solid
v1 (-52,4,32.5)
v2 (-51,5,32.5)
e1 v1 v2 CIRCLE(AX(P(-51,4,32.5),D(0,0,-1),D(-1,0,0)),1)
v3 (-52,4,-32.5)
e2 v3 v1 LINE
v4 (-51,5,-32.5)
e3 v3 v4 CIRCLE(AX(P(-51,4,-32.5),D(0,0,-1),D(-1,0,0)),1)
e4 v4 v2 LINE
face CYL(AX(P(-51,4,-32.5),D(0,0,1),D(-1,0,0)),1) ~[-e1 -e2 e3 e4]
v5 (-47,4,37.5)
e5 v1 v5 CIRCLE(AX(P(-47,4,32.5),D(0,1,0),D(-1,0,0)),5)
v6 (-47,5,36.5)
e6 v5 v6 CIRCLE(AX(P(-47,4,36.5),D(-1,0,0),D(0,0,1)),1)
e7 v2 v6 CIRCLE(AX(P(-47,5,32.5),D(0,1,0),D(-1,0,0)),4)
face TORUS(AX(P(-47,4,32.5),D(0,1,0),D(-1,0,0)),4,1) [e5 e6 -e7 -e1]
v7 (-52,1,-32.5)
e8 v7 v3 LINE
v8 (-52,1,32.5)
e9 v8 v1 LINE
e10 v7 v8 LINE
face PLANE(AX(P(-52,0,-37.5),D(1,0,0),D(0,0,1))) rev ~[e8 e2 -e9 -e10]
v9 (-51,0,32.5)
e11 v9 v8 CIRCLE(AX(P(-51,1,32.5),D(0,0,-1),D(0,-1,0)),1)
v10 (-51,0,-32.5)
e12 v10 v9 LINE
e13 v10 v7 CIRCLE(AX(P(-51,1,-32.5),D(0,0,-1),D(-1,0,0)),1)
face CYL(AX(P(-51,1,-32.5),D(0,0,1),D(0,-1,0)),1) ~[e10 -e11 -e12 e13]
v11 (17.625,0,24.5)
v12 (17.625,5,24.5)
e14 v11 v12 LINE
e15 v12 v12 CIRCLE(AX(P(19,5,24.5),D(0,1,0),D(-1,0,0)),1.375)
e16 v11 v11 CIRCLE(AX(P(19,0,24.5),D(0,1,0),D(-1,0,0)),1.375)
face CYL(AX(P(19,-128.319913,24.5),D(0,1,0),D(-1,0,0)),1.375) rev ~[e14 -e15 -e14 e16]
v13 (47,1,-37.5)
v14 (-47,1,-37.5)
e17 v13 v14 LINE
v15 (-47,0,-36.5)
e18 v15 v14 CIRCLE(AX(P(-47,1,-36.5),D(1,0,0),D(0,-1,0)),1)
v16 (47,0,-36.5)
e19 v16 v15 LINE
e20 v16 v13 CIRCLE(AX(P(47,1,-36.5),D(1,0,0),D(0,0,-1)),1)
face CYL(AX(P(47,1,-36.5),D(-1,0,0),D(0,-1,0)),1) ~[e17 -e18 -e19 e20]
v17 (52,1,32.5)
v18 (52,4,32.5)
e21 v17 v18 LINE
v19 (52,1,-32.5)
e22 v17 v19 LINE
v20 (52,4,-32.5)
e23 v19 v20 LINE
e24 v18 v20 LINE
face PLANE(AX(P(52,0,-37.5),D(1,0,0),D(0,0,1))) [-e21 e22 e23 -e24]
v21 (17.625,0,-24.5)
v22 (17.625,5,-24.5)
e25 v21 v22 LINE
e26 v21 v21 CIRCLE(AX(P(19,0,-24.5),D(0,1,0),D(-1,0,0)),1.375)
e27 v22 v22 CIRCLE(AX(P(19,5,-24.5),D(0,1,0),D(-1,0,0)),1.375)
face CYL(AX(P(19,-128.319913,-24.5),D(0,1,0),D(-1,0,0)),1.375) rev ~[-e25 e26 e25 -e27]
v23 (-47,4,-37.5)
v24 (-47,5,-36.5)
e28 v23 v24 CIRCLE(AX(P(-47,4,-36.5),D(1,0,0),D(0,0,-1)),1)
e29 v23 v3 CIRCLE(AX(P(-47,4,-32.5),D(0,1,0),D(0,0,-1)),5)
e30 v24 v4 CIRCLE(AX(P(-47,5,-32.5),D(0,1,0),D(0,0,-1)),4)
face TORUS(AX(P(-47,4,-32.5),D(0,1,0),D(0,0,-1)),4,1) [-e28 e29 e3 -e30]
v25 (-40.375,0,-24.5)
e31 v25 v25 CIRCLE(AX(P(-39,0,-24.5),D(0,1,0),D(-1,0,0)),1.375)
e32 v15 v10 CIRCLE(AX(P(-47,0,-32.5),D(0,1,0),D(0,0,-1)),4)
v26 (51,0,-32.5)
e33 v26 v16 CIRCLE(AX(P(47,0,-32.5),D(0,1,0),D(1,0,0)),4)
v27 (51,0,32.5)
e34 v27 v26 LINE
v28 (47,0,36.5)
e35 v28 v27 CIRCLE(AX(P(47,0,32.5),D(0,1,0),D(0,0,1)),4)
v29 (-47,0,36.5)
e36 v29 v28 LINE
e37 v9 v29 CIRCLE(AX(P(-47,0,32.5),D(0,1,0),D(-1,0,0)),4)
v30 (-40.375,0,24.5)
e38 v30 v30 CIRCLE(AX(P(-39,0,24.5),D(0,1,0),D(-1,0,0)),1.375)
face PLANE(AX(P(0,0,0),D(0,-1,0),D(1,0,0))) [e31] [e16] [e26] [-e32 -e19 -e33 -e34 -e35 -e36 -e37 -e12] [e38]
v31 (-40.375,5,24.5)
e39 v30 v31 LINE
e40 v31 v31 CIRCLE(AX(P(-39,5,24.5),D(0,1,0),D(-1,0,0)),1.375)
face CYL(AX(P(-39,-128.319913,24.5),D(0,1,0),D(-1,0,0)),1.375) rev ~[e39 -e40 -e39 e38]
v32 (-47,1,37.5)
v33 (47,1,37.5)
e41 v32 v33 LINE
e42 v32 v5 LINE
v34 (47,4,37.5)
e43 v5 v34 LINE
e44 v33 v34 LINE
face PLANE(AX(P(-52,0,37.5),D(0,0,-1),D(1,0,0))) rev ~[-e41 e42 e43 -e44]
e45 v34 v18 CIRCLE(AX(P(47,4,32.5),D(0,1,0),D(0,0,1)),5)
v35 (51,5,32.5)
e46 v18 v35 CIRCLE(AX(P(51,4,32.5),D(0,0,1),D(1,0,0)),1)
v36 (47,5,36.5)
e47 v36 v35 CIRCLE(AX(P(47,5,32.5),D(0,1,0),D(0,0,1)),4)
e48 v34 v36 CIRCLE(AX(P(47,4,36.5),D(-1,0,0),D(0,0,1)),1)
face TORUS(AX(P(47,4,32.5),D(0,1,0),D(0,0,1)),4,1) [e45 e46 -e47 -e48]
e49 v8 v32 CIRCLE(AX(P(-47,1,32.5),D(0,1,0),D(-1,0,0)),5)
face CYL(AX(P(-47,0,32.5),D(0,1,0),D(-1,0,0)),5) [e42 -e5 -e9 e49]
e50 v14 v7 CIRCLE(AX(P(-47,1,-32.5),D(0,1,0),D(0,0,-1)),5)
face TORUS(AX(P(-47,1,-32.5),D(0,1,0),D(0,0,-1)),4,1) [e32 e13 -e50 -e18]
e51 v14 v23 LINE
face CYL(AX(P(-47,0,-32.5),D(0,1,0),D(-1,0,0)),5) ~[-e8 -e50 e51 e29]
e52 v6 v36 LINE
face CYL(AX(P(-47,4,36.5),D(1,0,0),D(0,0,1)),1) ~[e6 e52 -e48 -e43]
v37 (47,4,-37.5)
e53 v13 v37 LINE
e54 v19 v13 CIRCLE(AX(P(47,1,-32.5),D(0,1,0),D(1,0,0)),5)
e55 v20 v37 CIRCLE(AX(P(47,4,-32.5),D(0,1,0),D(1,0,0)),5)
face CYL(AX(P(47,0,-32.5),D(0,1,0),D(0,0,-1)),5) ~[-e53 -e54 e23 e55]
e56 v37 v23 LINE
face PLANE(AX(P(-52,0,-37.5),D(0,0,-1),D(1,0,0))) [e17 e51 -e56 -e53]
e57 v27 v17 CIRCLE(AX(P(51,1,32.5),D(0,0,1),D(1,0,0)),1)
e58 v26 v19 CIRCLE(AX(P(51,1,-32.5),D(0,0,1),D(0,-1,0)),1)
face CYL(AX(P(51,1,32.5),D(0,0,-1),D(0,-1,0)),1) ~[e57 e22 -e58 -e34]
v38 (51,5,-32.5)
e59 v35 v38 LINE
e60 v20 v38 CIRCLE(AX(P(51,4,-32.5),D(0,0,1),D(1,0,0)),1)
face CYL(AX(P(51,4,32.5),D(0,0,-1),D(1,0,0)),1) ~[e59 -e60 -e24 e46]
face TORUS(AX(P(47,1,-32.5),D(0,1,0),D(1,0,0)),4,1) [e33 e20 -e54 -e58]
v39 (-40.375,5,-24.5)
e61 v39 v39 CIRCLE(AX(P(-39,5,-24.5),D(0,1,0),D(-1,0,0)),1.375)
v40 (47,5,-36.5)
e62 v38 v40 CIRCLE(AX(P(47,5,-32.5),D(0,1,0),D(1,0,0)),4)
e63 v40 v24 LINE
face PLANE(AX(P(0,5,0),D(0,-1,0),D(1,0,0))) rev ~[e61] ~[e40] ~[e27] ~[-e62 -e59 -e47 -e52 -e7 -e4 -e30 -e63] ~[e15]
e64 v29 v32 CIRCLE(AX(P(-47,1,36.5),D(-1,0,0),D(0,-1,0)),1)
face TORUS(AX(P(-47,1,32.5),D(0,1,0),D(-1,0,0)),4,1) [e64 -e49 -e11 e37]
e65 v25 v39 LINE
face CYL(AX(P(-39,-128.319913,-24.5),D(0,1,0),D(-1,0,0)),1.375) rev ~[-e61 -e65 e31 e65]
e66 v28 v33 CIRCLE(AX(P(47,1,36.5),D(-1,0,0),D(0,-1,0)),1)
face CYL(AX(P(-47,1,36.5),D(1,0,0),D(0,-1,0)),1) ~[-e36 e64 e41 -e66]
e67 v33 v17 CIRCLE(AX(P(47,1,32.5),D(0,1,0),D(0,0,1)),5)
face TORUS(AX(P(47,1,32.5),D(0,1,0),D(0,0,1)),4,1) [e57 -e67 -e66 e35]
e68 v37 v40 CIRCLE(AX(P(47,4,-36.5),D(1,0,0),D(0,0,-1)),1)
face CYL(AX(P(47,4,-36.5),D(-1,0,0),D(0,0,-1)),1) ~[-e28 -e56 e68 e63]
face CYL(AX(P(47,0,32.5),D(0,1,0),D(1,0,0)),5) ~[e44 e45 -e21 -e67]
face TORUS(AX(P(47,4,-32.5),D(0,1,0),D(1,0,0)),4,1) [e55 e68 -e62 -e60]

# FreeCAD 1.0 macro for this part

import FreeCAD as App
import Part
import Sketcher
from FreeCAD import Vector


def edges_at(feature, points):
    """Names of the edges that pass closest to the given points."""
    edges = feature.Shape.Edges
    near = lambda p: min(range(len(edges)), key=lambda i: edges[i].distToShape(Part.Vertex(*p))[0])
    return sorted({f"Edge{near(p) + 1}" for p in points})

doc = App.newDocument("Part")
body = doc.addObject("PartDesign::Body", "Body")

# Sketch on XZ plane
sketch1 = body.newObject("Sketcher::SketchObject", "Sketch")
sketch1.AttachmentSupport = (doc.getObject("XZ_Plane"), [""])
sketch1.MapMode = "FlatFace"
sketch1.addGeometry(Part.LineSegment(Vector(-52, 38, 0), Vector(-52, -38, 0)), False)
sketch1.addGeometry(Part.LineSegment(Vector(-52, -38, 0), Vector(52, -38, 0)), False)
sketch1.addGeometry(Part.LineSegment(Vector(52, -38, 0), Vector(52, 38, 0)), False)
sketch1.addGeometry(Part.LineSegment(Vector(52, 38, 0), Vector(-52, 38, 0)), False)
sketch1.addConstraint(Sketcher.Constraint("Coincident", 0, 2, 1, 1))
sketch1.addConstraint(Sketcher.Constraint("Coincident", 1, 2, 2, 1))
sketch1.addConstraint(Sketcher.Constraint("Coincident", 2, 2, 3, 1))
sketch1.addConstraint(Sketcher.Constraint("Coincident", 3, 2, 0, 1))
sketch1.addConstraint(Sketcher.Constraint("Vertical", 0))
sketch1.addConstraint(Sketcher.Constraint("Horizontal", 1))
sketch1.addConstraint(Sketcher.Constraint("Vertical", 2))
sketch1.addConstraint(Sketcher.Constraint("Horizontal", 3))
sketch1.addConstraint(Sketcher.Constraint("Symmetric", 0, 2, 2, 2, -1, 1))
sketch1.addConstraint(Sketcher.Constraint("DistanceX", 1, 1, 1, 2, 104.0))
sketch1.addConstraint(Sketcher.Constraint("DistanceY", 0, 2, 0, 1, 75.0))
pad1 = body.newObject("PartDesign::Pad", "Pad")
pad1.Profile = sketch1
pad1.Length = 5
pad1.Reversed = True
doc.recompute()

fillet = body.newObject("PartDesign::Fillet", "Fillet")
fillet.Base = (pad1, edges_at(pad1, [
    (-52, 2.5, 37.5),
    (52, 2.5, 37.5),
    (52, 2.5, -37.5),
    (-52, 2.5, -37.5),
]))
fillet.Radius = 5

# Sketch on XZ plane
sketch2 = body.newObject("Sketcher::SketchObject", "Sketch001")
sketch2.AttachmentSupport = (doc.getObject("XZ_Plane"), [""])
sketch2.MapMode = "FlatFace"
sketch2.addGeometry(Part.Circle(Vector(-39, 24.5, 0), Vector(0, 0, 1), 1.4), False)
sketch2.addGeometry(Part.Circle(Vector(19, 24.5, 0), Vector(0, 0, 1), 1.4), False)
sketch2.addGeometry(Part.Circle(Vector(19, -24.5, 0), Vector(0, 0, 1), 1.4), False)
sketch2.addGeometry(Part.Circle(Vector(-39, -24.5, 0), Vector(0, 0, 1), 1.4), False)
sketch2.addConstraint(Sketcher.Constraint("Equal", 0, 1))
sketch2.addConstraint(Sketcher.Constraint("Equal", 1, 2))
sketch2.addConstraint(Sketcher.Constraint("Equal", 2, 3))
sketch2.addConstraint(Sketcher.Constraint("Symmetric", 1, 3, 2, 3, -1))
sketch2.addConstraint(Sketcher.Constraint("Symmetric", 0, 3, 3, 3, -1))
sketch2.addConstraint(Sketcher.Constraint("Horizontal", 0, 3, 1, 3))
sketch2.addConstraint(Sketcher.Constraint("Diameter", 0, 2.75))
sketch2.addConstraint(Sketcher.Constraint("DistanceX", 0, 3, -1, 1, 39.0))
sketch2.addConstraint(Sketcher.Constraint("DistanceX", -1, 1, 1, 3, 19.0))
sketch2.addConstraint(Sketcher.Constraint("DistanceY", 2, 3, 1, 3, 49.0))
doc.recompute()
hole = body.newObject("PartDesign::Hole", "Hole")
hole.Profile = sketch2
hole.ThreadType = "None"
hole.Diameter = 2.75
hole.DepthType = "ThroughAll"
doc.recompute()

fillet2 = body.newObject("PartDesign::Fillet", "Fillet001")
fillet2.Base = (hole, edges_at(hole, [(-52, 5, 0)]))
fillet2.Radius = 1
doc.recompute()

fillet3 = body.newObject("PartDesign::Fillet", "Fillet002")
fillet3.Base = (fillet2, edges_at(fillet2, [(0, 0, 37.5)]))
fillet3.Radius = 1

doc.recompute()
